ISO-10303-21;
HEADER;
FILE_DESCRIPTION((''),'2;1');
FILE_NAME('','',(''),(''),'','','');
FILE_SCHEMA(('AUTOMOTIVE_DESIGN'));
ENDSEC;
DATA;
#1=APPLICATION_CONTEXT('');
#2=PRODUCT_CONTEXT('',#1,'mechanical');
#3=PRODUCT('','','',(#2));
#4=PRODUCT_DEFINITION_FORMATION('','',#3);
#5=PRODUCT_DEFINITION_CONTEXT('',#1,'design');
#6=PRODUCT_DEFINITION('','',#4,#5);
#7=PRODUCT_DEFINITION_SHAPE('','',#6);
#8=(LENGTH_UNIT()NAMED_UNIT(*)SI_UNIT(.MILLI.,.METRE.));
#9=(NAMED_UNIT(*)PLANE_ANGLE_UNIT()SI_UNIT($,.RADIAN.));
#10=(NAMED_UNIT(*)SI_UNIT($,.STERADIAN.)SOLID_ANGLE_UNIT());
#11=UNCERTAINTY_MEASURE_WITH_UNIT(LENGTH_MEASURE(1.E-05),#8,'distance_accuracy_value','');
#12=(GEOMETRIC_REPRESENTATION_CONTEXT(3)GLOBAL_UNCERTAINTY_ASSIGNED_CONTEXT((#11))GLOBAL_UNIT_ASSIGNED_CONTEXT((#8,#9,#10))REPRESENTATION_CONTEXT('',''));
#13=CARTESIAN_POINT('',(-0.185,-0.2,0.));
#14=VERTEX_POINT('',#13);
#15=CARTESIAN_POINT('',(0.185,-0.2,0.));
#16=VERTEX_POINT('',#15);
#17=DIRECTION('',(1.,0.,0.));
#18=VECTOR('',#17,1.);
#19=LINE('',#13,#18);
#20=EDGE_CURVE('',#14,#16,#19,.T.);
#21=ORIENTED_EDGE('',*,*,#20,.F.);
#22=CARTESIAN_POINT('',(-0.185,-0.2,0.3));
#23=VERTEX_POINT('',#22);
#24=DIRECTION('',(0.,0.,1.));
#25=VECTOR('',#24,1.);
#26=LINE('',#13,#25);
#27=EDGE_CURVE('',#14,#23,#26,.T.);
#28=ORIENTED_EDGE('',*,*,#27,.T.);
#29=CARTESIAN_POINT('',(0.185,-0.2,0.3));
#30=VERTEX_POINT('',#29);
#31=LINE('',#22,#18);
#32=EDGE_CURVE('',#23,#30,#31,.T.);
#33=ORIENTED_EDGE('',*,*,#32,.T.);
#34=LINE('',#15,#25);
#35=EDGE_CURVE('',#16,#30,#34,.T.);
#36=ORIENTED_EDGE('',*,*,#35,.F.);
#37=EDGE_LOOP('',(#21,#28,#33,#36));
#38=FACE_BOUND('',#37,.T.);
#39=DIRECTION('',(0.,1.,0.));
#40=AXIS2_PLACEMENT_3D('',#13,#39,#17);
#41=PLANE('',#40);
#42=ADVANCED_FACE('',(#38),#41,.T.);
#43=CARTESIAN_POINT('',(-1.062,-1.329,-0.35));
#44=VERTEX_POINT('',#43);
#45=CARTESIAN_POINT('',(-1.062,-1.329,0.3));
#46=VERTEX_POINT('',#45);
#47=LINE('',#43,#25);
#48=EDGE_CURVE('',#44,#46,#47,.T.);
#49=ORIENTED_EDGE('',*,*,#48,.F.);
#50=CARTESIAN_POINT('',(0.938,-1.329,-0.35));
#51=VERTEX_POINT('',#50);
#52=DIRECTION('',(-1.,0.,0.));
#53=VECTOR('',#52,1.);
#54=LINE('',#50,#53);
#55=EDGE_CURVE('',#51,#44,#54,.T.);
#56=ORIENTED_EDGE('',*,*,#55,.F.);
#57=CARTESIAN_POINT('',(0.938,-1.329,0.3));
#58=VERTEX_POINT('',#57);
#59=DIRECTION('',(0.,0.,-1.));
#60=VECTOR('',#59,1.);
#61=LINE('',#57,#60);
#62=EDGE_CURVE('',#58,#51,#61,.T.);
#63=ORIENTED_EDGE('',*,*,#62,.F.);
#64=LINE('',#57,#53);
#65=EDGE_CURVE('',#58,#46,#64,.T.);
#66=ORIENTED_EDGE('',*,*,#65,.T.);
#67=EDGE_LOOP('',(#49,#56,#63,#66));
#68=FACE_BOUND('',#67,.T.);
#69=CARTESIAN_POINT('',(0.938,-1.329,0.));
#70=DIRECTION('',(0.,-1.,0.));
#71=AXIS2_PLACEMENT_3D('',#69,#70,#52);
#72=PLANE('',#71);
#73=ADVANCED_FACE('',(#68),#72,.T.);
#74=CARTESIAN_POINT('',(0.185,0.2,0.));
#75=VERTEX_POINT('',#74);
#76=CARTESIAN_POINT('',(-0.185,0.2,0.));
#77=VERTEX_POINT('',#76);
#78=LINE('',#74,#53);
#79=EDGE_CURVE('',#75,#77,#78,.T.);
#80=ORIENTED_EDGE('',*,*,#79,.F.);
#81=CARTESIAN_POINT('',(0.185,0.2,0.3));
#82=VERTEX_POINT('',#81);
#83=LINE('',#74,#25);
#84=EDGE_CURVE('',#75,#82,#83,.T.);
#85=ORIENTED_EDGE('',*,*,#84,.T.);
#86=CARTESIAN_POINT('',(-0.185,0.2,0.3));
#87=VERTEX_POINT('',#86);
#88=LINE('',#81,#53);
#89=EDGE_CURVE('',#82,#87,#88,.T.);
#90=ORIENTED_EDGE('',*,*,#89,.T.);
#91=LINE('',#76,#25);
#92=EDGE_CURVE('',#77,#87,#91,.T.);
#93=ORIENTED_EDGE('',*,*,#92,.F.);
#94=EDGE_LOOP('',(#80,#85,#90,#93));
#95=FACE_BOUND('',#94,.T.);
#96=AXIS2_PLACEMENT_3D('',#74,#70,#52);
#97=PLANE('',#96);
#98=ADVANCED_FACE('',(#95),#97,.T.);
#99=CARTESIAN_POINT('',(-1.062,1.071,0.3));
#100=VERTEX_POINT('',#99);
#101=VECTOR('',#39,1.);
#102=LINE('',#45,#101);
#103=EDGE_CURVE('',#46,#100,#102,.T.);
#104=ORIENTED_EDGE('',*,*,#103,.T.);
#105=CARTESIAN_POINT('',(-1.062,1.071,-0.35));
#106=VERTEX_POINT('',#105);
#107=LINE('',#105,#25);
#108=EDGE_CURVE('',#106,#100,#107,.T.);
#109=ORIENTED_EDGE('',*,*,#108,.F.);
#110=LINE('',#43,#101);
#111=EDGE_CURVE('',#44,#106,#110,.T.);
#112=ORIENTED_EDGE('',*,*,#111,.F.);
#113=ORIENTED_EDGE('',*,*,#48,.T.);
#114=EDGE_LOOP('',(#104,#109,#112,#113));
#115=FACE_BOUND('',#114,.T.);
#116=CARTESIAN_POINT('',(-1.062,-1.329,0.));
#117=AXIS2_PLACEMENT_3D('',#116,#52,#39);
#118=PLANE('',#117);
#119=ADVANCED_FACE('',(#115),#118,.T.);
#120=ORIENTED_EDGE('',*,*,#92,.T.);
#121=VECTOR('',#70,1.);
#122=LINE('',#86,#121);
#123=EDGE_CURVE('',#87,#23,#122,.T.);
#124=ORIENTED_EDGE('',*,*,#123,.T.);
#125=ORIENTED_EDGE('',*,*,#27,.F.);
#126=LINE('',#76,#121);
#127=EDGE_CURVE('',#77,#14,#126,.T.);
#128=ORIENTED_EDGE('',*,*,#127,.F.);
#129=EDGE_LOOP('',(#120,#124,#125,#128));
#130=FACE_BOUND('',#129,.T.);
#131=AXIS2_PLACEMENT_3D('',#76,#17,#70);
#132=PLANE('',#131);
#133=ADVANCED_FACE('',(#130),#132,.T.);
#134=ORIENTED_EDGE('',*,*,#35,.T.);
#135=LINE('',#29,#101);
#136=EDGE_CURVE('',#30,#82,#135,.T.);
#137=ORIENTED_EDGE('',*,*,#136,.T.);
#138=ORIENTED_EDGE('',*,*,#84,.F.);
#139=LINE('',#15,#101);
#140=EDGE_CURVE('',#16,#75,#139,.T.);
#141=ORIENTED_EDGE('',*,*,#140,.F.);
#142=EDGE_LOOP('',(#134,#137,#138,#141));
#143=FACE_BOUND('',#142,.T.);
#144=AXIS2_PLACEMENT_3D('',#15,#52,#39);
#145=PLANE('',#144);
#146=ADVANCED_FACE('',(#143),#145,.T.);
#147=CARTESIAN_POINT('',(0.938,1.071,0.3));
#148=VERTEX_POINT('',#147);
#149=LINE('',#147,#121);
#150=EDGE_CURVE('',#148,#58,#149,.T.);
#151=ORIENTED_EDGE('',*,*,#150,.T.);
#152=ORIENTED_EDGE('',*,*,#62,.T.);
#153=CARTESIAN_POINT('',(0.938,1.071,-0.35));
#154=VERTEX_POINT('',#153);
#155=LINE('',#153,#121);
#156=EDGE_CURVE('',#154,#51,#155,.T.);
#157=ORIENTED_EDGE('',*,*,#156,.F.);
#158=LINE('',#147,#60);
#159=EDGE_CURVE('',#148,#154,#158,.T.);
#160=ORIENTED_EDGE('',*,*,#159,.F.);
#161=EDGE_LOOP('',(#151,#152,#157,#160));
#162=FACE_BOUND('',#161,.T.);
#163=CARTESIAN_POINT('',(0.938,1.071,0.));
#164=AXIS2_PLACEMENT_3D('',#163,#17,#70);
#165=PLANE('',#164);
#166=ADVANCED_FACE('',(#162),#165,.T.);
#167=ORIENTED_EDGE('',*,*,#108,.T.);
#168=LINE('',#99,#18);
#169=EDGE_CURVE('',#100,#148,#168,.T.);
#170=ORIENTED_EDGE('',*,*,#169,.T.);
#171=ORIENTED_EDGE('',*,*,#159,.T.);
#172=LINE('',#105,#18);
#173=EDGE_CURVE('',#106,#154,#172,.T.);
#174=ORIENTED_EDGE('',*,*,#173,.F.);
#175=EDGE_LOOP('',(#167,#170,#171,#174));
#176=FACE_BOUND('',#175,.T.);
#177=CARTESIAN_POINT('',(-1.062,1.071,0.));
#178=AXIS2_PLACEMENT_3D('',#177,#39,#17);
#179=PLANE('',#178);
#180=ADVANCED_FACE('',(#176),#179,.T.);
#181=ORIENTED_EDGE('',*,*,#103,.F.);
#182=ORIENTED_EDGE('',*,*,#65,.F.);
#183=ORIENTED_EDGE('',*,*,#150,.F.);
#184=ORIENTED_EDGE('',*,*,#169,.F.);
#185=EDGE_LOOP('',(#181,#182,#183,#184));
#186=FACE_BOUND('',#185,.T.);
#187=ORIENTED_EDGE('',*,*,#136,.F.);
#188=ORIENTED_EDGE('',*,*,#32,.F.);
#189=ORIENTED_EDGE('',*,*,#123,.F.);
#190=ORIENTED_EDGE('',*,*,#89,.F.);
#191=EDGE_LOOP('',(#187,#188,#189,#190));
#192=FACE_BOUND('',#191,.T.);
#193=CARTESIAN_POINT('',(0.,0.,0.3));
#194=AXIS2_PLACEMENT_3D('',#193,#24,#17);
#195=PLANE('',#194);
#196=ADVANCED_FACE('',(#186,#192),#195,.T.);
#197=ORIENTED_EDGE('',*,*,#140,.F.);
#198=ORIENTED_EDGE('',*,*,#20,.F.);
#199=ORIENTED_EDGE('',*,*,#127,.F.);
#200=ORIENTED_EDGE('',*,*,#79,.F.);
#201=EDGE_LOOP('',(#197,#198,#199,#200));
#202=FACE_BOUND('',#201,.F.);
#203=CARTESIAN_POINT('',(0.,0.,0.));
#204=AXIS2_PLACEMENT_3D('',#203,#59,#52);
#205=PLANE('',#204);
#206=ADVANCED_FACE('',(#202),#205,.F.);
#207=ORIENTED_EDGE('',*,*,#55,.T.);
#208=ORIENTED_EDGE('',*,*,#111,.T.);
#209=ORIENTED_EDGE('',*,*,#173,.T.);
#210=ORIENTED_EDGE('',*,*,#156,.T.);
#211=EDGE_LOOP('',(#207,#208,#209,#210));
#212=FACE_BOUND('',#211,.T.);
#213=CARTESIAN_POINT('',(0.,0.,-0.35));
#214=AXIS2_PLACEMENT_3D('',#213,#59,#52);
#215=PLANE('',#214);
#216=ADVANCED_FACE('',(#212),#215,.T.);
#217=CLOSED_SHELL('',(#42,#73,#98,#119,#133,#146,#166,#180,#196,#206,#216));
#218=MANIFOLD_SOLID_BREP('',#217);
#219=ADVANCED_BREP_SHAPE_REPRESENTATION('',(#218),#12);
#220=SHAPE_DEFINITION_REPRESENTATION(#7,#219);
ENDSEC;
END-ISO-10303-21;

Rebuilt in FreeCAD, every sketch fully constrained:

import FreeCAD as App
import Part
import Sketcher
from FreeCAD import Vector
Q = App.Units.Quantity

doc = App.newDocument("Part")
params = doc.addObject("Spreadsheet::Sheet", "Params")
for row, (alias, value) in enumerate([
    ("sketch1_width", "2 mm"),
    ("sketch1_height", "2.4 mm"),
    ("sketch1_height2", "0.4 mm"),
    ("sketch1_width2", "0.37 mm"),
    ("pad1_length", "0.3 mm"),
    ("sketch2_width", "2 mm"),
    ("sketch2_height", "2.4 mm"),
    ("pad2_length", "0.35 mm"),
], start=1):
    params.set(f"A{row}", alias)
    params.set(f"B{row}", "=" + value)
    params.setAlias(f"B{row}", alias)

body = doc.addObject("PartDesign::Body", "Body")

# Sketch on XY plane
sketch1 = doc.addObject("Sketcher::SketchObject", "Sketch")
body.addObject(sketch1)
sketch1.AttachmentSupport = (doc.XY_Plane, [""])
sketch1.MapMode = "FlatFace"
sketch1.addGeometry(Part.LineSegment(Vector(0.94, 1.07, 0), Vector(-1.06, 1.07, 0)), False)
sketch1.addGeometry(Part.LineSegment(Vector(-1.06, 1.07, 0), Vector(-1.06, -1.33, 0)), False)
sketch1.addGeometry(Part.LineSegment(Vector(-1.06, -1.33, 0), Vector(0.94, -1.33, 0)), False)
sketch1.addGeometry(Part.LineSegment(Vector(0.94, -1.33, 0), Vector(0.94, 1.07, 0)), False)
sketch1.addGeometry(Part.LineSegment(Vector(0.18, -0.2, 0), Vector(-0.18, -0.2, 0)), False)
sketch1.addGeometry(Part.LineSegment(Vector(-0.18, -0.2, 0), Vector(-0.18, 0.2, 0)), False)
sketch1.addGeometry(Part.LineSegment(Vector(-0.18, 0.2, 0), Vector(0.18, 0.2, 0)), False)
sketch1.addGeometry(Part.LineSegment(Vector(0.18, 0.2, 0), Vector(0.18, -0.2, 0)), False)
sketch1.addConstraint(Sketcher.Constraint("Coincident", 0, 2, 1, 1))
sketch1.addConstraint(Sketcher.Constraint("Coincident", 1, 2, 2, 1))
sketch1.addConstraint(Sketcher.Constraint("Coincident", 2, 2, 3, 1))
sketch1.addConstraint(Sketcher.Constraint("Coincident", 3, 2, 0, 1))
sketch1.addConstraint(Sketcher.Constraint("Coincident", 4, 2, 5, 1))
sketch1.addConstraint(Sketcher.Constraint("Coincident", 5, 2, 6, 1))
sketch1.addConstraint(Sketcher.Constraint("Coincident", 6, 2, 7, 1))
sketch1.addConstraint(Sketcher.Constraint("Coincident", 7, 2, 4, 1))
sketch1.addConstraint(Sketcher.Constraint("Horizontal", 0))
sketch1.addConstraint(Sketcher.Constraint("Vertical", 1))
sketch1.addConstraint(Sketcher.Constraint("Horizontal", 2))
sketch1.addConstraint(Sketcher.Constraint("Vertical", 3))
sketch1.addConstraint(Sketcher.Constraint("Horizontal", 4))
sketch1.addConstraint(Sketcher.Constraint("Vertical", 5))
sketch1.addConstraint(Sketcher.Constraint("Horizontal", 6))
sketch1.addConstraint(Sketcher.Constraint("Vertical", 7))
sketch1.addConstraint(Sketcher.Constraint("Symmetric", 4, 2, 6, 2, -1, 1))
sketch1.addConstraint(Sketcher.Constraint("DistanceX", 0, 2, 0, 1, Q("2 mm")))
sketch1.addConstraint(Sketcher.Constraint("DistanceY", 1, 2, 1, 1, Q("2.4 mm")))
sketch1.addConstraint(Sketcher.Constraint("DistanceY", 5, 1, 5, 2, Q("0.4 mm")))
sketch1.addConstraint(Sketcher.Constraint("DistanceX", 4, 2, 4, 1, Q("0.37 mm")))
sketch1.addConstraint(Sketcher.Constraint("DistanceX", 1, 2, 4, 2, Q("0.877 mm")))
sketch1.addConstraint(Sketcher.Constraint("DistanceY", 5, 2, 0, 2, Q("0.871 mm")))
sketch1.setExpression("Constraints[17]", "Params.sketch1_width")
sketch1.setExpression("Constraints[18]", "Params.sketch1_height")
sketch1.setExpression("Constraints[19]", "Params.sketch1_height2")
sketch1.setExpression("Constraints[20]", "Params.sketch1_width2")
pad1 = doc.addObject("PartDesign::Pad", "Pad")
body.addObject(pad1)
pad1.Profile = sketch1
pad1.setExpression("Length", "Params.pad1_length")

# Sketch on XY plane
sketch2 = doc.addObject("Sketcher::SketchObject", "Sketch001")
body.addObject(sketch2)
sketch2.AttachmentSupport = (doc.XY_Plane, [""])
sketch2.MapMode = "FlatFace"
sketch2.addGeometry(Part.LineSegment(Vector(-1.1, -1.3, 0), Vector(-1.1, 1.1, 0)), False)
sketch2.addGeometry(Part.LineSegment(Vector(-1.1, 1.1, 0), Vector(0.9, 1.1, 0)), False)
sketch2.addGeometry(Part.LineSegment(Vector(0.9, 1.1, 0), Vector(0.9, -1.3, 0)), False)
sketch2.addGeometry(Part.LineSegment(Vector(0.9, -1.3, 0), Vector(-1.1, -1.3, 0)), False)
sketch2.addConstraint(Sketcher.Constraint("Coincident", 0, 2, 1, 1))
sketch2.addConstraint(Sketcher.Constraint("Coincident", 1, 2, 2, 1))
sketch2.addConstraint(Sketcher.Constraint("Coincident", 2, 2, 3, 1))
sketch2.addConstraint(Sketcher.Constraint("Coincident", 3, 2, 0, 1))
sketch2.addConstraint(Sketcher.Constraint("Vertical", 0))
sketch2.addConstraint(Sketcher.Constraint("Horizontal", 1))
sketch2.addConstraint(Sketcher.Constraint("Vertical", 2))
sketch2.addConstraint(Sketcher.Constraint("Horizontal", 3))
sketch2.addConstraint(Sketcher.Constraint("DistanceX", 1, 1, 1, 2, Q("2 mm")))
sketch2.addConstraint(Sketcher.Constraint("DistanceY", 0, 1, 0, 2, Q("2.4 mm")))
sketch2.addConstraint(Sketcher.Constraint("DistanceX", 0, 2, -1, 1, Q("1.062 mm")))
sketch2.addConstraint(Sketcher.Constraint("DistanceY", -1, 1, 0, 2, Q("1.071 mm")))
sketch2.setExpression("Constraints[8]", "Params.sketch2_width")
sketch2.setExpression("Constraints[9]", "Params.sketch2_height")
pad2 = doc.addObject("PartDesign::Pad", "Pad001")
body.addObject(pad2)
pad2.Profile = sketch2
pad2.setExpression("Length", "Params.pad2_length")
pad2.Reversed = True

doc.recompute()
